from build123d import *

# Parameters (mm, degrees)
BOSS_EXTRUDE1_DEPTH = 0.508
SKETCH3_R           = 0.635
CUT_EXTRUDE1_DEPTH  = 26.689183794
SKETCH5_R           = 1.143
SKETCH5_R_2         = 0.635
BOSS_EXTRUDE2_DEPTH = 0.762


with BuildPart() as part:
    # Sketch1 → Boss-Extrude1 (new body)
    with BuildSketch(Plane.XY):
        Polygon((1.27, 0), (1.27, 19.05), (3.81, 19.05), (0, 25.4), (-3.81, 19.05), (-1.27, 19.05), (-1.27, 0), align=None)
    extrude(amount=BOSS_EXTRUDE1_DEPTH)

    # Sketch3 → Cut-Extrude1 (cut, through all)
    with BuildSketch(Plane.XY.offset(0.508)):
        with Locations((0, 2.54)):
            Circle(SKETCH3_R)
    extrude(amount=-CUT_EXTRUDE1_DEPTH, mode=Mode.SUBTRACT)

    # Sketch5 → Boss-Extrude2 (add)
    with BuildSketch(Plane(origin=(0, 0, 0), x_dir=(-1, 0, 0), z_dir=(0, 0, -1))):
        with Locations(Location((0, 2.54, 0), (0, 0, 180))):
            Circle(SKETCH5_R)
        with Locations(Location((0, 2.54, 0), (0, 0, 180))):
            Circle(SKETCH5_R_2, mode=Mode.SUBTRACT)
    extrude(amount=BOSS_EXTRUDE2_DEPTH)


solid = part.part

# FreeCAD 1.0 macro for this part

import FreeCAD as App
import Part
import Sketcher
Q = App.Units.Quantity


def add_polygon(sketch, points):
    """Adds a closed chain of lines whose ends are joined by coincident constraints."""
    first, n = sketch.GeometryCount, len(points)
    for a, b in zip(points, points[1:] + points[:1]):
        sketch.addGeometry(Part.LineSegment(App.Vector(*a, 0), App.Vector(*b, 0)), False)
    for i in range(n):
        sketch.addConstraint(Sketcher.Constraint("Coincident", first + i, 2, first + (i + 1) % n, 1))

doc = App.newDocument("Part")
body = doc.addObject("PartDesign::Body", "Body")

# Sketch on XY plane
sketch1 = body.newObject("Sketcher::SketchObject", "Sketch")
sketch1.AttachmentSupport = (doc.getObject("XY_Plane"), [""])
sketch1.MapMode = "FlatFace"
add_polygon(sketch1, [(1.3, 0), (1.3, 19.1), (3.8, 19.1), (0, 25.4), (-3.8, 19.1), (-1.3, 19.1), (-1.3, 0)])  # lines 0-6
sketch1.addConstraint([
    Sketcher.Constraint("Vertical", 0),
    Sketcher.Constraint("Horizontal", 1),
    Sketcher.Constraint("Horizontal", 4),
    Sketcher.Constraint("Vertical", 5),
    Sketcher.Constraint("Horizontal", 6),
    Sketcher.Constraint("Symmetric", 5, 2, 6, 2, -1, 1),
    Sketcher.Constraint("Symmetric", 1, 2, 3, 2, -2),
    Sketcher.Constraint("PointOnObject", 2, 2, -2),
    Sketcher.Constraint("Equal", 4, 6),
    Sketcher.Constraint("DistanceX", 1, 1, 1, 2, Q("0.1 in")),
    Sketcher.Constraint("DistanceY", -1, 1, 2, 2, Q("1 in")),
    Sketcher.Constraint("DistanceY", 0, 1, 0, 2, Q("0.75 in")),
])
pad1 = body.newObject("PartDesign::Pad", "Pad")
pad1.Profile = sketch1
pad1.Length = Q("0.02 in")

# Sketch on XY plane
sketch2 = body.newObject("Sketcher::SketchObject", "Sketch001")
sketch2.AttachmentSupport = (doc.getObject("XY_Plane"), [""])
sketch2.MapMode = "FlatFace"
sketch2.AttachmentOffset = App.Placement(App.Vector(0, 0, 0.02 * 25.4), App.Rotation())
sketch2.addGeometry(Part.Circle(App.Vector(0, 2.5, 0), App.Vector(0, 0, 1), 0.6), False)
sketch2.addConstraint([
    Sketcher.Constraint("PointOnObject", 0, 3, -2),
    Sketcher.Constraint("Diameter", 0, Q("0.05 in")),
    Sketcher.Constraint("DistanceY", -1, 1, 0, 3, Q("0.1 in")),
])
pocket1 = body.newObject("PartDesign::Pocket", "Pocket")
pocket1.Profile = sketch2
pocket1.Type = "ThroughAll"

# Sketch on XY plane
sketch3 = body.newObject("Sketcher::SketchObject", "Sketch002")
sketch3.AttachmentSupport = (doc.getObject("XY_Plane"), [""])
sketch3.MapMode = "FlatFace"
sketch3.addGeometry([
    Part.Circle(App.Vector(0, 2.5, 0), App.Vector(0, 0, 1), 1.1),
    Part.Circle(App.Vector(0, 2.5, 0), App.Vector(0, 0, 1), 0.6),
], False)
sketch3.addConstraint([
    Sketcher.Constraint("Coincident", 1, 3, 0, 3),
    Sketcher.Constraint("PointOnObject", 0, 3, -2),
    Sketcher.Constraint("Diameter", 0, Q("0.09 in")),
    Sketcher.Constraint("Diameter", 1, Q("0.05 in")),
    Sketcher.Constraint("DistanceY", -1, 1, 0, 3, Q("0.1 in")),
])
pad2 = body.newObject("PartDesign::Pad", "Pad001")
pad2.Profile = sketch3
pad2.Length = Q("0.03 in")
pad2.Reversed = True

doc.recompute()
